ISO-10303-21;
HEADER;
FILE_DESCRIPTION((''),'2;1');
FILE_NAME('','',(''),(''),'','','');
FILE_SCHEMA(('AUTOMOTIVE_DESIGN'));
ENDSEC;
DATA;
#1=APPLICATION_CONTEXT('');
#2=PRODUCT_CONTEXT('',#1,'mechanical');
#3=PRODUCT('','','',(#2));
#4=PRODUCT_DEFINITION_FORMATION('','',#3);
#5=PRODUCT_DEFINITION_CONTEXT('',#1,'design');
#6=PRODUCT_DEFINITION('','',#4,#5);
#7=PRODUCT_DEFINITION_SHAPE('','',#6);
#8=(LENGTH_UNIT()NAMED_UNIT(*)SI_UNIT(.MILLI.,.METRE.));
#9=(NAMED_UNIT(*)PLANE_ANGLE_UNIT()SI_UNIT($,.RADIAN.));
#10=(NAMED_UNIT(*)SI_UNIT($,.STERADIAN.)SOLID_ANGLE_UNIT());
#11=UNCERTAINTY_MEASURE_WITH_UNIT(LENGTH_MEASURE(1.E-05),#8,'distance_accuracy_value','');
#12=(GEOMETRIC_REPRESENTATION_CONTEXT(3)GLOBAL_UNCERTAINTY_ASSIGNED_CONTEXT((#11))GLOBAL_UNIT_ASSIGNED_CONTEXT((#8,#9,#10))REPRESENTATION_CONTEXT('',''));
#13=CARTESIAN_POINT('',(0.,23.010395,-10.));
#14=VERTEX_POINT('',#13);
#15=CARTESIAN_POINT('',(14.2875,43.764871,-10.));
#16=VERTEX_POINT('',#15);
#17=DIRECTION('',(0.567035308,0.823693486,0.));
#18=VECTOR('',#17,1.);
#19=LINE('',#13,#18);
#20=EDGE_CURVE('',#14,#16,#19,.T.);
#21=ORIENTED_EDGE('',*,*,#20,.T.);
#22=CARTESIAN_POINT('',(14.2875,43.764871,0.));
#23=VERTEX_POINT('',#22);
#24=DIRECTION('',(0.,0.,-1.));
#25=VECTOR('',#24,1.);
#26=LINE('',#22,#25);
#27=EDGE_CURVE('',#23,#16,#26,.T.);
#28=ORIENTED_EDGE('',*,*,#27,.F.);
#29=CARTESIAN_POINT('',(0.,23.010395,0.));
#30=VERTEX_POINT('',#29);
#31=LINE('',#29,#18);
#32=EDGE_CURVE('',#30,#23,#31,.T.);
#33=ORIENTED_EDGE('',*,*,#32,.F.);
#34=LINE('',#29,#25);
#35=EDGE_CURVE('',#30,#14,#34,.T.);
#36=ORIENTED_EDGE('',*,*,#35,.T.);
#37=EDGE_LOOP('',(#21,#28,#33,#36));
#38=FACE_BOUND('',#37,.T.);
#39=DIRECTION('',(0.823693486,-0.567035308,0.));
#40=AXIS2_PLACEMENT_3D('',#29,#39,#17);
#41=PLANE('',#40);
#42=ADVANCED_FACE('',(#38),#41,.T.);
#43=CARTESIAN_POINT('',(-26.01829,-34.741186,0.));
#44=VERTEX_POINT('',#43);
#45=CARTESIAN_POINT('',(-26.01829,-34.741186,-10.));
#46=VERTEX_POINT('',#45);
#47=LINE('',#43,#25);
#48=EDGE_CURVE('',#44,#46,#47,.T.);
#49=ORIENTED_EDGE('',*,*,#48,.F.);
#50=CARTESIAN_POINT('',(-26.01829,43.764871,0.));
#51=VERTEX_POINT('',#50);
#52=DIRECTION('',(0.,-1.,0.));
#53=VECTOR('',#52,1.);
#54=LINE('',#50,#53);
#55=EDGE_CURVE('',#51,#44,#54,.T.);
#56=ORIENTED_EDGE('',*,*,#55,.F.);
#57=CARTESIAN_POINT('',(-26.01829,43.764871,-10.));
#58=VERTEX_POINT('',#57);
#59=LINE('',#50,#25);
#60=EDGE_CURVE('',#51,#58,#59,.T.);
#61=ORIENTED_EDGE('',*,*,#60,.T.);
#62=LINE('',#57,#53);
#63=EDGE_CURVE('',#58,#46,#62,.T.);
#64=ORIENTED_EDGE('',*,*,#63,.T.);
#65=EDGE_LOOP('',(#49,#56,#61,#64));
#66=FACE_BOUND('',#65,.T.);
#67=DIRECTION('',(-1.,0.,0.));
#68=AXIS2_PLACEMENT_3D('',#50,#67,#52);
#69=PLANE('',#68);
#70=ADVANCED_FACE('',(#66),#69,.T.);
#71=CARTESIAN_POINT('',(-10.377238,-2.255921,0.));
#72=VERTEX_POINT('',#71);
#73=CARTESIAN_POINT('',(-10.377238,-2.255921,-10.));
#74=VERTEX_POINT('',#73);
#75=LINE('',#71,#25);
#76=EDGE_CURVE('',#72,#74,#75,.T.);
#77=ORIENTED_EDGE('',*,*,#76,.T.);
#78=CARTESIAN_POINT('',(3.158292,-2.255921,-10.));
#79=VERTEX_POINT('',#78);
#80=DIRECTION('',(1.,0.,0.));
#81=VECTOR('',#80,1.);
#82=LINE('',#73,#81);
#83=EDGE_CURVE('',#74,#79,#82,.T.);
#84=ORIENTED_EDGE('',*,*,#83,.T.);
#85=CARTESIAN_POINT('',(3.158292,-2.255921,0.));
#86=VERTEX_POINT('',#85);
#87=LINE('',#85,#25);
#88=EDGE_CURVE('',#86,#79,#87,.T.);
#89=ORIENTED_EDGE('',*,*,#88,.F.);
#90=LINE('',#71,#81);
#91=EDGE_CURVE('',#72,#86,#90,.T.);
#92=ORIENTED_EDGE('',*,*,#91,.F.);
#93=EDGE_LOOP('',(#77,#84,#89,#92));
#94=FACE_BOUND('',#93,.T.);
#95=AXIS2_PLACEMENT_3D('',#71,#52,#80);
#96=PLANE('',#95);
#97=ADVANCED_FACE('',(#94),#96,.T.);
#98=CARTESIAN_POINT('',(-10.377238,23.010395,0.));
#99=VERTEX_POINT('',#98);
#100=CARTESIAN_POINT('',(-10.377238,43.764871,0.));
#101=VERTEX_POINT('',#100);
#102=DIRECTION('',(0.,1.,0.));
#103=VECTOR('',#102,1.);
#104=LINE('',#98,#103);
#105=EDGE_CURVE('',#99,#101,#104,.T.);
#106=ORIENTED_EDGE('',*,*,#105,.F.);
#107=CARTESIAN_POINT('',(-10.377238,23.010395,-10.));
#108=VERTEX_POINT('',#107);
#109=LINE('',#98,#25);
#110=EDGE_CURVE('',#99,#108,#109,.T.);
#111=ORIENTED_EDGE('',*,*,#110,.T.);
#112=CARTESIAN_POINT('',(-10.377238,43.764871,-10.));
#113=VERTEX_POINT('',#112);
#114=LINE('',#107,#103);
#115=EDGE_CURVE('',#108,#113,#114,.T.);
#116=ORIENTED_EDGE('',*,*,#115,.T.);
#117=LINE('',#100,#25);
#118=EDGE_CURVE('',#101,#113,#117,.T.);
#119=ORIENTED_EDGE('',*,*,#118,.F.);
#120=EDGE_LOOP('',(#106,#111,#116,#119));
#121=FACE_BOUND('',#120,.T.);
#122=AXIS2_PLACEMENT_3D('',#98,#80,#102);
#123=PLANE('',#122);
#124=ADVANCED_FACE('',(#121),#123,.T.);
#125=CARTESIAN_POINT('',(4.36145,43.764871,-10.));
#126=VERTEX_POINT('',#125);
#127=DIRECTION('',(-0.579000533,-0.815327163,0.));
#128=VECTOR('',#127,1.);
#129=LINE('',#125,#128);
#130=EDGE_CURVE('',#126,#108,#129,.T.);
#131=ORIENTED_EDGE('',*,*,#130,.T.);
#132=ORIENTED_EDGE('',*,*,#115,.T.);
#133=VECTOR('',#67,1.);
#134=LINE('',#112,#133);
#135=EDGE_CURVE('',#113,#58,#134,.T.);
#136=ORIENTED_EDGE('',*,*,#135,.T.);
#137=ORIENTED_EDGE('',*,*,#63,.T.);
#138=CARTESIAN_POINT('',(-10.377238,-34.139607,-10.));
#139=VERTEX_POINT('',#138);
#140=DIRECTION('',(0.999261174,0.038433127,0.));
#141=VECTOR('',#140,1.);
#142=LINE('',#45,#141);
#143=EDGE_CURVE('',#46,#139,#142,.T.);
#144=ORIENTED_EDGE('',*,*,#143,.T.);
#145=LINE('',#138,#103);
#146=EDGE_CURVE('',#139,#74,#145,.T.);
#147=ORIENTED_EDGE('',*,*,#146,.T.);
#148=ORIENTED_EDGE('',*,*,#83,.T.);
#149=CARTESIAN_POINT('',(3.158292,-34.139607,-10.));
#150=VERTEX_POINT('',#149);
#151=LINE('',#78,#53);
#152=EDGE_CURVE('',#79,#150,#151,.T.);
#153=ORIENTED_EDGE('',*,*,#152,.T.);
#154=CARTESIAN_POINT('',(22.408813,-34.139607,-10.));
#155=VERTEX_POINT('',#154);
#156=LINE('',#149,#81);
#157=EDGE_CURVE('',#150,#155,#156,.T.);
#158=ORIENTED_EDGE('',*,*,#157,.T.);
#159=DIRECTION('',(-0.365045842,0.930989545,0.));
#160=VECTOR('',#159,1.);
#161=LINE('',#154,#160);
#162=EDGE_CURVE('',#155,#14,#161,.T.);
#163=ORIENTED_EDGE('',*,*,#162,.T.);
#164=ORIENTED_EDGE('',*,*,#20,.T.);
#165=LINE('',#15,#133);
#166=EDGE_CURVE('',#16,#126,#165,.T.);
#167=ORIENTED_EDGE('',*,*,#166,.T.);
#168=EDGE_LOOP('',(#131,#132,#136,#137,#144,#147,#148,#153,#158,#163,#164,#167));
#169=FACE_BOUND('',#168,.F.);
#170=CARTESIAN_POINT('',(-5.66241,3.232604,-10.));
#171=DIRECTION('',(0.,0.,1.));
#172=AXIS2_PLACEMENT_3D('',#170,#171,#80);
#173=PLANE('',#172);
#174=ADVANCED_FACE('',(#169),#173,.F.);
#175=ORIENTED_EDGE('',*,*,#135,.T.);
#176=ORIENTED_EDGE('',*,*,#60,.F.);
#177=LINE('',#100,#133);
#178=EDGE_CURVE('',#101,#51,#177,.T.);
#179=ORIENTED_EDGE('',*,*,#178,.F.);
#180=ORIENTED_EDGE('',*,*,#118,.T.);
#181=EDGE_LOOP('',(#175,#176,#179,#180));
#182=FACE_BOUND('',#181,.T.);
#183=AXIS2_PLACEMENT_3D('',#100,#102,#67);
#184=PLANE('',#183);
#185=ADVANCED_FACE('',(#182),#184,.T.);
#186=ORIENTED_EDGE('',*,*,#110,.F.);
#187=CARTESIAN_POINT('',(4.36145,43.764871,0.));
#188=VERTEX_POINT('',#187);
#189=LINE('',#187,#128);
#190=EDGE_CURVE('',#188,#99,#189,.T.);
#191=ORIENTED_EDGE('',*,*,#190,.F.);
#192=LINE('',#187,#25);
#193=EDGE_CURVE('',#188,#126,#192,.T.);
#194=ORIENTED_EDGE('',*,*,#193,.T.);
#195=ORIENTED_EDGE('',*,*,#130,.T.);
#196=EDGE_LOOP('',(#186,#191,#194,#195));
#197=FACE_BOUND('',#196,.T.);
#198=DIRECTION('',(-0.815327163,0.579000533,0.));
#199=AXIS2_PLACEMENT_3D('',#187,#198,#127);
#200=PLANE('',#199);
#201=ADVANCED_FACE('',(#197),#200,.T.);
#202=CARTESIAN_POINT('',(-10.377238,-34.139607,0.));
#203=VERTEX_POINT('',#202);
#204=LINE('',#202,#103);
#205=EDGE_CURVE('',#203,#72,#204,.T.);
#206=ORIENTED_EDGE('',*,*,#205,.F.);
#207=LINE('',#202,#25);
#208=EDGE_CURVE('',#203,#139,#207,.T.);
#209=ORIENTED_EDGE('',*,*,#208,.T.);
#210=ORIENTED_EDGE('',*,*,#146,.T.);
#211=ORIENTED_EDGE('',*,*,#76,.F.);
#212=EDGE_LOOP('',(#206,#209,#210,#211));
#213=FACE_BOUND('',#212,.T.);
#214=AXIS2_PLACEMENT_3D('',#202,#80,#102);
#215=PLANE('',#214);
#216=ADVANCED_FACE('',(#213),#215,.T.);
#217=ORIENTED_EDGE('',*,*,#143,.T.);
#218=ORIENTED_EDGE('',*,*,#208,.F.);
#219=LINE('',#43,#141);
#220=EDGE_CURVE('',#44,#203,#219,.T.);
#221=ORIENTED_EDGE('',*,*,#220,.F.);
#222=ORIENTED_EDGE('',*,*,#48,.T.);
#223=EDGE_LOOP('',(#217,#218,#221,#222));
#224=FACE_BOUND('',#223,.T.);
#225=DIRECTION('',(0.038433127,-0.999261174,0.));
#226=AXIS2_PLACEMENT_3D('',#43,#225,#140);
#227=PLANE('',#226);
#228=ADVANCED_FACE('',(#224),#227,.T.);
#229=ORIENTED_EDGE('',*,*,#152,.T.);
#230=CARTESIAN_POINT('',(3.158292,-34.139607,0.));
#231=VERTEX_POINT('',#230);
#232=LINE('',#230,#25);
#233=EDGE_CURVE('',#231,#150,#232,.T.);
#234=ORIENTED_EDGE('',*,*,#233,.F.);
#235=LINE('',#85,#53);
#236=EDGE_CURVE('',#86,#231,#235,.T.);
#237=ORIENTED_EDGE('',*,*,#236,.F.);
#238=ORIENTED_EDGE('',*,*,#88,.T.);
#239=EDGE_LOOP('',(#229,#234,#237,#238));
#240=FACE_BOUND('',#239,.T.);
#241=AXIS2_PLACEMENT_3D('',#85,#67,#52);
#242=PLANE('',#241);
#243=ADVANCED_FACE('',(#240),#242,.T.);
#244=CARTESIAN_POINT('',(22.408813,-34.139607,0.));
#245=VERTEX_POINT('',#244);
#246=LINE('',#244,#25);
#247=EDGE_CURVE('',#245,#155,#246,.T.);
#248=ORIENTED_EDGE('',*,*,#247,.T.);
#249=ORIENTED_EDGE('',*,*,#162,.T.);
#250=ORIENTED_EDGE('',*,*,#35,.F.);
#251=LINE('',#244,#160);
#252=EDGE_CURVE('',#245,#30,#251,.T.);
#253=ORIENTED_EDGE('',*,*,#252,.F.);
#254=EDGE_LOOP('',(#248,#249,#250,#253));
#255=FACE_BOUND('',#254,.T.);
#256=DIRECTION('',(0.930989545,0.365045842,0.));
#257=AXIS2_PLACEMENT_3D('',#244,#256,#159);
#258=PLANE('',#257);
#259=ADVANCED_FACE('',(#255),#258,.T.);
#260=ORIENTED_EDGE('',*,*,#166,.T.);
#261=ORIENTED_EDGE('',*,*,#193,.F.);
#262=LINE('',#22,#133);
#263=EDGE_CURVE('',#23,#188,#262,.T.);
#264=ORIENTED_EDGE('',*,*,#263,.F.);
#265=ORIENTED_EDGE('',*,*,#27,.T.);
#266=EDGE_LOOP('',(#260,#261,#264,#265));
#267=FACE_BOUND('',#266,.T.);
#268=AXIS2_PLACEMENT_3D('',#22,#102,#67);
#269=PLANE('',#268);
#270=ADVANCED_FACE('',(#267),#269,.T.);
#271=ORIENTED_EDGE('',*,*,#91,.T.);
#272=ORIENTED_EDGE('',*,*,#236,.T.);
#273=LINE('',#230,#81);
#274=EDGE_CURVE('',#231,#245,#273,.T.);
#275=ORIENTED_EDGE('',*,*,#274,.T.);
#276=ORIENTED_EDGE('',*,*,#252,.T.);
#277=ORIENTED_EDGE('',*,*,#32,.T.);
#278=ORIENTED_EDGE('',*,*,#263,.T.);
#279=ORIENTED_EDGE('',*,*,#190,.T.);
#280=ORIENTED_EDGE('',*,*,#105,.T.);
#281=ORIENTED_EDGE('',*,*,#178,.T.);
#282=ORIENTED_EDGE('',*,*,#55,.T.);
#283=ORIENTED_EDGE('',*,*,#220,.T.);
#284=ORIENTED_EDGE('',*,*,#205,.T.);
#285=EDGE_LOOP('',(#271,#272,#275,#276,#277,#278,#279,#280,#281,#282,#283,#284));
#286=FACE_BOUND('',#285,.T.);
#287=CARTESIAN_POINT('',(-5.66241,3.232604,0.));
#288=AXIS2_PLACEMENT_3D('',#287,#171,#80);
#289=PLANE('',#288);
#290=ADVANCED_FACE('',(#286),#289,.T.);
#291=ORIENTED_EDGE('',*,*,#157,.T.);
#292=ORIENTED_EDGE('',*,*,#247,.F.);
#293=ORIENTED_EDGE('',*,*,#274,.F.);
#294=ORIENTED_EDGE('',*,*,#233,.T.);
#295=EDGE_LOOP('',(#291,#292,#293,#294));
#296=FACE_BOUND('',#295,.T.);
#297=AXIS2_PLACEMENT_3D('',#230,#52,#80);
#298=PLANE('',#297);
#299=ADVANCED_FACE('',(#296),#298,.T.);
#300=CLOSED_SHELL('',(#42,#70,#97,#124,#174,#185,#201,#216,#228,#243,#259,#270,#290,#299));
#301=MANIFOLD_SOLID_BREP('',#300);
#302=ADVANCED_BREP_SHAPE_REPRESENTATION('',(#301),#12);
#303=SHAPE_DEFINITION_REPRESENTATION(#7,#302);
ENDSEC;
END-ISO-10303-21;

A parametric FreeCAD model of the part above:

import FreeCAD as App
import Part
import Sketcher
from FreeCAD import Vector
Q = App.Units.Quantity

doc = App.newDocument("Part")
body = doc.addObject("PartDesign::Body", "Body")

# Sketch on XY plane
sketch1 = body.newObject("Sketcher::SketchObject", "Sketch")
sketch1.AttachmentSupport = (doc.getObject("XY_Plane"), [""])
sketch1.MapMode = "FlatFace"
sketch1.addGeometry([
    Part.LineSegment(Vector(-10, 44, 0), Vector(-26, 44, 0)),  # 0
    Part.LineSegment(Vector(-26, 44, 0), Vector(-26, -35, 0)),  # 1
    Part.LineSegment(Vector(-26, -35, 0), Vector(-10, -34, 0)),  # 2
    Part.LineSegment(Vector(-10, -34, 0), Vector(-10, -2, 0)),  # 3
    Part.LineSegment(Vector(-10, -2, 0), Vector(3, -2, 0)),  # 4
    Part.LineSegment(Vector(3, -2, 0), Vector(3, -34, 0)),  # 5
    Part.LineSegment(Vector(3, -34, 0), Vector(22, -34, 0)),  # 6
    Part.LineSegment(Vector(22, -34, 0), Vector(0, 23, 0)),  # 7
    Part.LineSegment(Vector(0, 23, 0), Vector(14, 44, 0)),  # 8
    Part.LineSegment(Vector(14, 44, 0), Vector(4, 44, 0)),  # 9
    Part.LineSegment(Vector(4, 44, 0), Vector(-10, 23, 0)),  # 10
    Part.LineSegment(Vector(-10, 23, 0), Vector(-10, 44, 0)),  # 11
], False)
sketch1.addConstraint([
    Sketcher.Constraint("Coincident", 0, 2, 1, 1),
    Sketcher.Constraint("Coincident", 1, 2, 2, 1),
    Sketcher.Constraint("Coincident", 2, 2, 3, 1),
    Sketcher.Constraint("Coincident", 3, 2, 4, 1),
    Sketcher.Constraint("Coincident", 4, 2, 5, 1),
    Sketcher.Constraint("Coincident", 5, 2, 6, 1),
    Sketcher.Constraint("Coincident", 6, 2, 7, 1),
    Sketcher.Constraint("Coincident", 7, 2, 8, 1),
    Sketcher.Constraint("Coincident", 8, 2, 9, 1),
    Sketcher.Constraint("Coincident", 9, 2, 10, 1),
    Sketcher.Constraint("Coincident", 10, 2, 11, 1),
    Sketcher.Constraint("Coincident", 11, 2, 0, 1),
    Sketcher.Constraint("Horizontal", 0),
    Sketcher.Constraint("Vertical", 1),
    Sketcher.Constraint("Vertical", 3),
    Sketcher.Constraint("Horizontal", 4),
    Sketcher.Constraint("Vertical", 5),
    Sketcher.Constraint("Horizontal", 6),
    Sketcher.Constraint("Horizontal", 9),
    Sketcher.Constraint("Vertical", 11),
    Sketcher.Constraint("PointOnObject", 7, 2, -2),
    Sketcher.Constraint("Horizontal", 2, 2, 5, 2),
    Sketcher.Constraint("Horizontal", 0, 2, 8, 2),
    Sketcher.Constraint("Horizontal", 7, 2, 10, 2),
    Sketcher.Constraint("Vertical", 3, 2, 10, 2),
    Sketcher.Constraint("Distance", 7, Q("61.386298 mm")),
    Sketcher.Constraint("DistanceX", 4, 1, 4, 2, Q("13.53553 mm")),
    Sketcher.Constraint("DistanceX", 6, 1, 6, 2, Q("19.250521 mm")),
    Sketcher.Constraint("DistanceX", 9, 2, 9, 1, Q("9.92605 mm")),
    Sketcher.Constraint("DistanceX", -1, 1, 8, 2, Q("14.2875 mm")),
    Sketcher.Constraint("DistanceX", 0, 2, 0, 1, Q("15.641052 mm")),
    Sketcher.Constraint("DistanceY", 1, 2, 1, 1, Q("78.506057 mm")),
    Sketcher.Constraint("DistanceY", 3, 1, 3, 2, Q("31.883686 mm")),
    Sketcher.Constraint("DistanceY", 11, 1, 11, 2, Q("20.754476 mm")),
    Sketcher.Constraint("DistanceX", 0, 2, -1, 1, Q("26.01829 mm")),
    Sketcher.Constraint("DistanceY", -1, 1, 0, 2, Q("43.764871 mm")),
])
pad1 = body.newObject("PartDesign::Pad", "Pad")
pad1.Profile = sketch1
pad1.Length = 10
pad1.Reversed = True

doc.recompute()
